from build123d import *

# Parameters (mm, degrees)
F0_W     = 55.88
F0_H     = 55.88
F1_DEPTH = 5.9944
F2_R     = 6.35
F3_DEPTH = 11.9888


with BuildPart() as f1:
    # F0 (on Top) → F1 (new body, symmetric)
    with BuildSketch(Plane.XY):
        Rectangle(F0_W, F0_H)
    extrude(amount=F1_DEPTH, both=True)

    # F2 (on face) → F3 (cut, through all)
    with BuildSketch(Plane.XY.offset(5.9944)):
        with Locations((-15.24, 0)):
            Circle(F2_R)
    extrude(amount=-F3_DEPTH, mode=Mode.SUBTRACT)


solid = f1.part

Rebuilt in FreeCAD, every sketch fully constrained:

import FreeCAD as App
import Part
import Sketcher

V = App.Vector
Q = App.Units.Quantity


def add_polygon(sketch, points):
    """Adds a closed chain of lines whose ends are joined by coincident constraints."""
    first, n = sketch.GeometryCount, len(points)
    for a, b in zip(points, points[1:] + points[:1]):
        sketch.addGeometry(Part.LineSegment(App.Vector(*a, 0), App.Vector(*b, 0)), False)
    for i in range(n):
        sketch.addConstraint(Sketcher.Constraint("Coincident", first + i, 2, first + (i + 1) % n, 1))

doc = App.newDocument("Part")
params = doc.addObject("Spreadsheet::Sheet", "Params")
for row, (alias, value) in enumerate([
    ("sketch1_width", "2.2 in"),
    ("pad1_length", "0.472 in"),
    ("sketch2_diameter", "0.5 in"),
], start=1):
    params.set(f"A{row}", alias)
    params.set(f"B{row}", "=" + value)
    params.setAlias(f"B{row}", alias)

body = doc.addObject("PartDesign::Body", "Body")

sketch1 = doc.addObject("Sketcher::SketchObject", "Sketch")
body.addObject(sketch1)
sketch1.AttachmentSupport = (doc.XY_Plane, [""])
sketch1.MapMode = "FlatFace"
add_polygon(sketch1, [(-28, 28), (-28, -28), (28, -28), (28, 28)])
sketch1.addConstraint([
    Sketcher.Constraint("Vertical", 0),
    Sketcher.Constraint("Horizontal", 1),
    Sketcher.Constraint("Vertical", 2),
    Sketcher.Constraint("Horizontal", 3),
    Sketcher.Constraint("Symmetric", 0, 2, 2, 2, -1, 1),
    Sketcher.Constraint("Equal", 3, 0),
    Sketcher.Constraint("DistanceX", 1, 1, 1, 2, Q("2.2 in")),
])
sketch1.setExpression("Constraints[10]", "Params.sketch1_width")
pad1 = doc.addObject("PartDesign::Pad", "Pad")
body.addObject(pad1)
pad1.Profile = sketch1
pad1.setExpression("Length", "Params.pad1_length")
pad1.Midplane = True

sketch2 = doc.addObject("Sketcher::SketchObject", "Sketch001")
body.addObject(sketch2)
sketch2.AttachmentSupport = (doc.XY_Plane, [""])
sketch2.MapMode = "FlatFace"
sketch2.AttachmentOffset = App.Placement(V(0, 0, 0.236 * 25.4), App.Rotation())
sketch2.addGeometry(Part.Circle(V(-15, 0, 0), V(0, 0, 1), 6), False)
sketch2.addConstraint([
    Sketcher.Constraint("PointOnObject", 0, 3, -1),
    Sketcher.Constraint("Diameter", 0, Q("0.5 in")),
    Sketcher.Constraint("DistanceX", 0, 3, -1, 1, Q("0.6 in")),
])
sketch2.setExpression("Constraints[1]", "Params.sketch2_diameter")
pocket1 = doc.addObject("PartDesign::Pocket", "Pocket")
body.addObject(pocket1)
pocket1.Profile = sketch2
pocket1.Type = "ThroughAll"

doc.recompute()
